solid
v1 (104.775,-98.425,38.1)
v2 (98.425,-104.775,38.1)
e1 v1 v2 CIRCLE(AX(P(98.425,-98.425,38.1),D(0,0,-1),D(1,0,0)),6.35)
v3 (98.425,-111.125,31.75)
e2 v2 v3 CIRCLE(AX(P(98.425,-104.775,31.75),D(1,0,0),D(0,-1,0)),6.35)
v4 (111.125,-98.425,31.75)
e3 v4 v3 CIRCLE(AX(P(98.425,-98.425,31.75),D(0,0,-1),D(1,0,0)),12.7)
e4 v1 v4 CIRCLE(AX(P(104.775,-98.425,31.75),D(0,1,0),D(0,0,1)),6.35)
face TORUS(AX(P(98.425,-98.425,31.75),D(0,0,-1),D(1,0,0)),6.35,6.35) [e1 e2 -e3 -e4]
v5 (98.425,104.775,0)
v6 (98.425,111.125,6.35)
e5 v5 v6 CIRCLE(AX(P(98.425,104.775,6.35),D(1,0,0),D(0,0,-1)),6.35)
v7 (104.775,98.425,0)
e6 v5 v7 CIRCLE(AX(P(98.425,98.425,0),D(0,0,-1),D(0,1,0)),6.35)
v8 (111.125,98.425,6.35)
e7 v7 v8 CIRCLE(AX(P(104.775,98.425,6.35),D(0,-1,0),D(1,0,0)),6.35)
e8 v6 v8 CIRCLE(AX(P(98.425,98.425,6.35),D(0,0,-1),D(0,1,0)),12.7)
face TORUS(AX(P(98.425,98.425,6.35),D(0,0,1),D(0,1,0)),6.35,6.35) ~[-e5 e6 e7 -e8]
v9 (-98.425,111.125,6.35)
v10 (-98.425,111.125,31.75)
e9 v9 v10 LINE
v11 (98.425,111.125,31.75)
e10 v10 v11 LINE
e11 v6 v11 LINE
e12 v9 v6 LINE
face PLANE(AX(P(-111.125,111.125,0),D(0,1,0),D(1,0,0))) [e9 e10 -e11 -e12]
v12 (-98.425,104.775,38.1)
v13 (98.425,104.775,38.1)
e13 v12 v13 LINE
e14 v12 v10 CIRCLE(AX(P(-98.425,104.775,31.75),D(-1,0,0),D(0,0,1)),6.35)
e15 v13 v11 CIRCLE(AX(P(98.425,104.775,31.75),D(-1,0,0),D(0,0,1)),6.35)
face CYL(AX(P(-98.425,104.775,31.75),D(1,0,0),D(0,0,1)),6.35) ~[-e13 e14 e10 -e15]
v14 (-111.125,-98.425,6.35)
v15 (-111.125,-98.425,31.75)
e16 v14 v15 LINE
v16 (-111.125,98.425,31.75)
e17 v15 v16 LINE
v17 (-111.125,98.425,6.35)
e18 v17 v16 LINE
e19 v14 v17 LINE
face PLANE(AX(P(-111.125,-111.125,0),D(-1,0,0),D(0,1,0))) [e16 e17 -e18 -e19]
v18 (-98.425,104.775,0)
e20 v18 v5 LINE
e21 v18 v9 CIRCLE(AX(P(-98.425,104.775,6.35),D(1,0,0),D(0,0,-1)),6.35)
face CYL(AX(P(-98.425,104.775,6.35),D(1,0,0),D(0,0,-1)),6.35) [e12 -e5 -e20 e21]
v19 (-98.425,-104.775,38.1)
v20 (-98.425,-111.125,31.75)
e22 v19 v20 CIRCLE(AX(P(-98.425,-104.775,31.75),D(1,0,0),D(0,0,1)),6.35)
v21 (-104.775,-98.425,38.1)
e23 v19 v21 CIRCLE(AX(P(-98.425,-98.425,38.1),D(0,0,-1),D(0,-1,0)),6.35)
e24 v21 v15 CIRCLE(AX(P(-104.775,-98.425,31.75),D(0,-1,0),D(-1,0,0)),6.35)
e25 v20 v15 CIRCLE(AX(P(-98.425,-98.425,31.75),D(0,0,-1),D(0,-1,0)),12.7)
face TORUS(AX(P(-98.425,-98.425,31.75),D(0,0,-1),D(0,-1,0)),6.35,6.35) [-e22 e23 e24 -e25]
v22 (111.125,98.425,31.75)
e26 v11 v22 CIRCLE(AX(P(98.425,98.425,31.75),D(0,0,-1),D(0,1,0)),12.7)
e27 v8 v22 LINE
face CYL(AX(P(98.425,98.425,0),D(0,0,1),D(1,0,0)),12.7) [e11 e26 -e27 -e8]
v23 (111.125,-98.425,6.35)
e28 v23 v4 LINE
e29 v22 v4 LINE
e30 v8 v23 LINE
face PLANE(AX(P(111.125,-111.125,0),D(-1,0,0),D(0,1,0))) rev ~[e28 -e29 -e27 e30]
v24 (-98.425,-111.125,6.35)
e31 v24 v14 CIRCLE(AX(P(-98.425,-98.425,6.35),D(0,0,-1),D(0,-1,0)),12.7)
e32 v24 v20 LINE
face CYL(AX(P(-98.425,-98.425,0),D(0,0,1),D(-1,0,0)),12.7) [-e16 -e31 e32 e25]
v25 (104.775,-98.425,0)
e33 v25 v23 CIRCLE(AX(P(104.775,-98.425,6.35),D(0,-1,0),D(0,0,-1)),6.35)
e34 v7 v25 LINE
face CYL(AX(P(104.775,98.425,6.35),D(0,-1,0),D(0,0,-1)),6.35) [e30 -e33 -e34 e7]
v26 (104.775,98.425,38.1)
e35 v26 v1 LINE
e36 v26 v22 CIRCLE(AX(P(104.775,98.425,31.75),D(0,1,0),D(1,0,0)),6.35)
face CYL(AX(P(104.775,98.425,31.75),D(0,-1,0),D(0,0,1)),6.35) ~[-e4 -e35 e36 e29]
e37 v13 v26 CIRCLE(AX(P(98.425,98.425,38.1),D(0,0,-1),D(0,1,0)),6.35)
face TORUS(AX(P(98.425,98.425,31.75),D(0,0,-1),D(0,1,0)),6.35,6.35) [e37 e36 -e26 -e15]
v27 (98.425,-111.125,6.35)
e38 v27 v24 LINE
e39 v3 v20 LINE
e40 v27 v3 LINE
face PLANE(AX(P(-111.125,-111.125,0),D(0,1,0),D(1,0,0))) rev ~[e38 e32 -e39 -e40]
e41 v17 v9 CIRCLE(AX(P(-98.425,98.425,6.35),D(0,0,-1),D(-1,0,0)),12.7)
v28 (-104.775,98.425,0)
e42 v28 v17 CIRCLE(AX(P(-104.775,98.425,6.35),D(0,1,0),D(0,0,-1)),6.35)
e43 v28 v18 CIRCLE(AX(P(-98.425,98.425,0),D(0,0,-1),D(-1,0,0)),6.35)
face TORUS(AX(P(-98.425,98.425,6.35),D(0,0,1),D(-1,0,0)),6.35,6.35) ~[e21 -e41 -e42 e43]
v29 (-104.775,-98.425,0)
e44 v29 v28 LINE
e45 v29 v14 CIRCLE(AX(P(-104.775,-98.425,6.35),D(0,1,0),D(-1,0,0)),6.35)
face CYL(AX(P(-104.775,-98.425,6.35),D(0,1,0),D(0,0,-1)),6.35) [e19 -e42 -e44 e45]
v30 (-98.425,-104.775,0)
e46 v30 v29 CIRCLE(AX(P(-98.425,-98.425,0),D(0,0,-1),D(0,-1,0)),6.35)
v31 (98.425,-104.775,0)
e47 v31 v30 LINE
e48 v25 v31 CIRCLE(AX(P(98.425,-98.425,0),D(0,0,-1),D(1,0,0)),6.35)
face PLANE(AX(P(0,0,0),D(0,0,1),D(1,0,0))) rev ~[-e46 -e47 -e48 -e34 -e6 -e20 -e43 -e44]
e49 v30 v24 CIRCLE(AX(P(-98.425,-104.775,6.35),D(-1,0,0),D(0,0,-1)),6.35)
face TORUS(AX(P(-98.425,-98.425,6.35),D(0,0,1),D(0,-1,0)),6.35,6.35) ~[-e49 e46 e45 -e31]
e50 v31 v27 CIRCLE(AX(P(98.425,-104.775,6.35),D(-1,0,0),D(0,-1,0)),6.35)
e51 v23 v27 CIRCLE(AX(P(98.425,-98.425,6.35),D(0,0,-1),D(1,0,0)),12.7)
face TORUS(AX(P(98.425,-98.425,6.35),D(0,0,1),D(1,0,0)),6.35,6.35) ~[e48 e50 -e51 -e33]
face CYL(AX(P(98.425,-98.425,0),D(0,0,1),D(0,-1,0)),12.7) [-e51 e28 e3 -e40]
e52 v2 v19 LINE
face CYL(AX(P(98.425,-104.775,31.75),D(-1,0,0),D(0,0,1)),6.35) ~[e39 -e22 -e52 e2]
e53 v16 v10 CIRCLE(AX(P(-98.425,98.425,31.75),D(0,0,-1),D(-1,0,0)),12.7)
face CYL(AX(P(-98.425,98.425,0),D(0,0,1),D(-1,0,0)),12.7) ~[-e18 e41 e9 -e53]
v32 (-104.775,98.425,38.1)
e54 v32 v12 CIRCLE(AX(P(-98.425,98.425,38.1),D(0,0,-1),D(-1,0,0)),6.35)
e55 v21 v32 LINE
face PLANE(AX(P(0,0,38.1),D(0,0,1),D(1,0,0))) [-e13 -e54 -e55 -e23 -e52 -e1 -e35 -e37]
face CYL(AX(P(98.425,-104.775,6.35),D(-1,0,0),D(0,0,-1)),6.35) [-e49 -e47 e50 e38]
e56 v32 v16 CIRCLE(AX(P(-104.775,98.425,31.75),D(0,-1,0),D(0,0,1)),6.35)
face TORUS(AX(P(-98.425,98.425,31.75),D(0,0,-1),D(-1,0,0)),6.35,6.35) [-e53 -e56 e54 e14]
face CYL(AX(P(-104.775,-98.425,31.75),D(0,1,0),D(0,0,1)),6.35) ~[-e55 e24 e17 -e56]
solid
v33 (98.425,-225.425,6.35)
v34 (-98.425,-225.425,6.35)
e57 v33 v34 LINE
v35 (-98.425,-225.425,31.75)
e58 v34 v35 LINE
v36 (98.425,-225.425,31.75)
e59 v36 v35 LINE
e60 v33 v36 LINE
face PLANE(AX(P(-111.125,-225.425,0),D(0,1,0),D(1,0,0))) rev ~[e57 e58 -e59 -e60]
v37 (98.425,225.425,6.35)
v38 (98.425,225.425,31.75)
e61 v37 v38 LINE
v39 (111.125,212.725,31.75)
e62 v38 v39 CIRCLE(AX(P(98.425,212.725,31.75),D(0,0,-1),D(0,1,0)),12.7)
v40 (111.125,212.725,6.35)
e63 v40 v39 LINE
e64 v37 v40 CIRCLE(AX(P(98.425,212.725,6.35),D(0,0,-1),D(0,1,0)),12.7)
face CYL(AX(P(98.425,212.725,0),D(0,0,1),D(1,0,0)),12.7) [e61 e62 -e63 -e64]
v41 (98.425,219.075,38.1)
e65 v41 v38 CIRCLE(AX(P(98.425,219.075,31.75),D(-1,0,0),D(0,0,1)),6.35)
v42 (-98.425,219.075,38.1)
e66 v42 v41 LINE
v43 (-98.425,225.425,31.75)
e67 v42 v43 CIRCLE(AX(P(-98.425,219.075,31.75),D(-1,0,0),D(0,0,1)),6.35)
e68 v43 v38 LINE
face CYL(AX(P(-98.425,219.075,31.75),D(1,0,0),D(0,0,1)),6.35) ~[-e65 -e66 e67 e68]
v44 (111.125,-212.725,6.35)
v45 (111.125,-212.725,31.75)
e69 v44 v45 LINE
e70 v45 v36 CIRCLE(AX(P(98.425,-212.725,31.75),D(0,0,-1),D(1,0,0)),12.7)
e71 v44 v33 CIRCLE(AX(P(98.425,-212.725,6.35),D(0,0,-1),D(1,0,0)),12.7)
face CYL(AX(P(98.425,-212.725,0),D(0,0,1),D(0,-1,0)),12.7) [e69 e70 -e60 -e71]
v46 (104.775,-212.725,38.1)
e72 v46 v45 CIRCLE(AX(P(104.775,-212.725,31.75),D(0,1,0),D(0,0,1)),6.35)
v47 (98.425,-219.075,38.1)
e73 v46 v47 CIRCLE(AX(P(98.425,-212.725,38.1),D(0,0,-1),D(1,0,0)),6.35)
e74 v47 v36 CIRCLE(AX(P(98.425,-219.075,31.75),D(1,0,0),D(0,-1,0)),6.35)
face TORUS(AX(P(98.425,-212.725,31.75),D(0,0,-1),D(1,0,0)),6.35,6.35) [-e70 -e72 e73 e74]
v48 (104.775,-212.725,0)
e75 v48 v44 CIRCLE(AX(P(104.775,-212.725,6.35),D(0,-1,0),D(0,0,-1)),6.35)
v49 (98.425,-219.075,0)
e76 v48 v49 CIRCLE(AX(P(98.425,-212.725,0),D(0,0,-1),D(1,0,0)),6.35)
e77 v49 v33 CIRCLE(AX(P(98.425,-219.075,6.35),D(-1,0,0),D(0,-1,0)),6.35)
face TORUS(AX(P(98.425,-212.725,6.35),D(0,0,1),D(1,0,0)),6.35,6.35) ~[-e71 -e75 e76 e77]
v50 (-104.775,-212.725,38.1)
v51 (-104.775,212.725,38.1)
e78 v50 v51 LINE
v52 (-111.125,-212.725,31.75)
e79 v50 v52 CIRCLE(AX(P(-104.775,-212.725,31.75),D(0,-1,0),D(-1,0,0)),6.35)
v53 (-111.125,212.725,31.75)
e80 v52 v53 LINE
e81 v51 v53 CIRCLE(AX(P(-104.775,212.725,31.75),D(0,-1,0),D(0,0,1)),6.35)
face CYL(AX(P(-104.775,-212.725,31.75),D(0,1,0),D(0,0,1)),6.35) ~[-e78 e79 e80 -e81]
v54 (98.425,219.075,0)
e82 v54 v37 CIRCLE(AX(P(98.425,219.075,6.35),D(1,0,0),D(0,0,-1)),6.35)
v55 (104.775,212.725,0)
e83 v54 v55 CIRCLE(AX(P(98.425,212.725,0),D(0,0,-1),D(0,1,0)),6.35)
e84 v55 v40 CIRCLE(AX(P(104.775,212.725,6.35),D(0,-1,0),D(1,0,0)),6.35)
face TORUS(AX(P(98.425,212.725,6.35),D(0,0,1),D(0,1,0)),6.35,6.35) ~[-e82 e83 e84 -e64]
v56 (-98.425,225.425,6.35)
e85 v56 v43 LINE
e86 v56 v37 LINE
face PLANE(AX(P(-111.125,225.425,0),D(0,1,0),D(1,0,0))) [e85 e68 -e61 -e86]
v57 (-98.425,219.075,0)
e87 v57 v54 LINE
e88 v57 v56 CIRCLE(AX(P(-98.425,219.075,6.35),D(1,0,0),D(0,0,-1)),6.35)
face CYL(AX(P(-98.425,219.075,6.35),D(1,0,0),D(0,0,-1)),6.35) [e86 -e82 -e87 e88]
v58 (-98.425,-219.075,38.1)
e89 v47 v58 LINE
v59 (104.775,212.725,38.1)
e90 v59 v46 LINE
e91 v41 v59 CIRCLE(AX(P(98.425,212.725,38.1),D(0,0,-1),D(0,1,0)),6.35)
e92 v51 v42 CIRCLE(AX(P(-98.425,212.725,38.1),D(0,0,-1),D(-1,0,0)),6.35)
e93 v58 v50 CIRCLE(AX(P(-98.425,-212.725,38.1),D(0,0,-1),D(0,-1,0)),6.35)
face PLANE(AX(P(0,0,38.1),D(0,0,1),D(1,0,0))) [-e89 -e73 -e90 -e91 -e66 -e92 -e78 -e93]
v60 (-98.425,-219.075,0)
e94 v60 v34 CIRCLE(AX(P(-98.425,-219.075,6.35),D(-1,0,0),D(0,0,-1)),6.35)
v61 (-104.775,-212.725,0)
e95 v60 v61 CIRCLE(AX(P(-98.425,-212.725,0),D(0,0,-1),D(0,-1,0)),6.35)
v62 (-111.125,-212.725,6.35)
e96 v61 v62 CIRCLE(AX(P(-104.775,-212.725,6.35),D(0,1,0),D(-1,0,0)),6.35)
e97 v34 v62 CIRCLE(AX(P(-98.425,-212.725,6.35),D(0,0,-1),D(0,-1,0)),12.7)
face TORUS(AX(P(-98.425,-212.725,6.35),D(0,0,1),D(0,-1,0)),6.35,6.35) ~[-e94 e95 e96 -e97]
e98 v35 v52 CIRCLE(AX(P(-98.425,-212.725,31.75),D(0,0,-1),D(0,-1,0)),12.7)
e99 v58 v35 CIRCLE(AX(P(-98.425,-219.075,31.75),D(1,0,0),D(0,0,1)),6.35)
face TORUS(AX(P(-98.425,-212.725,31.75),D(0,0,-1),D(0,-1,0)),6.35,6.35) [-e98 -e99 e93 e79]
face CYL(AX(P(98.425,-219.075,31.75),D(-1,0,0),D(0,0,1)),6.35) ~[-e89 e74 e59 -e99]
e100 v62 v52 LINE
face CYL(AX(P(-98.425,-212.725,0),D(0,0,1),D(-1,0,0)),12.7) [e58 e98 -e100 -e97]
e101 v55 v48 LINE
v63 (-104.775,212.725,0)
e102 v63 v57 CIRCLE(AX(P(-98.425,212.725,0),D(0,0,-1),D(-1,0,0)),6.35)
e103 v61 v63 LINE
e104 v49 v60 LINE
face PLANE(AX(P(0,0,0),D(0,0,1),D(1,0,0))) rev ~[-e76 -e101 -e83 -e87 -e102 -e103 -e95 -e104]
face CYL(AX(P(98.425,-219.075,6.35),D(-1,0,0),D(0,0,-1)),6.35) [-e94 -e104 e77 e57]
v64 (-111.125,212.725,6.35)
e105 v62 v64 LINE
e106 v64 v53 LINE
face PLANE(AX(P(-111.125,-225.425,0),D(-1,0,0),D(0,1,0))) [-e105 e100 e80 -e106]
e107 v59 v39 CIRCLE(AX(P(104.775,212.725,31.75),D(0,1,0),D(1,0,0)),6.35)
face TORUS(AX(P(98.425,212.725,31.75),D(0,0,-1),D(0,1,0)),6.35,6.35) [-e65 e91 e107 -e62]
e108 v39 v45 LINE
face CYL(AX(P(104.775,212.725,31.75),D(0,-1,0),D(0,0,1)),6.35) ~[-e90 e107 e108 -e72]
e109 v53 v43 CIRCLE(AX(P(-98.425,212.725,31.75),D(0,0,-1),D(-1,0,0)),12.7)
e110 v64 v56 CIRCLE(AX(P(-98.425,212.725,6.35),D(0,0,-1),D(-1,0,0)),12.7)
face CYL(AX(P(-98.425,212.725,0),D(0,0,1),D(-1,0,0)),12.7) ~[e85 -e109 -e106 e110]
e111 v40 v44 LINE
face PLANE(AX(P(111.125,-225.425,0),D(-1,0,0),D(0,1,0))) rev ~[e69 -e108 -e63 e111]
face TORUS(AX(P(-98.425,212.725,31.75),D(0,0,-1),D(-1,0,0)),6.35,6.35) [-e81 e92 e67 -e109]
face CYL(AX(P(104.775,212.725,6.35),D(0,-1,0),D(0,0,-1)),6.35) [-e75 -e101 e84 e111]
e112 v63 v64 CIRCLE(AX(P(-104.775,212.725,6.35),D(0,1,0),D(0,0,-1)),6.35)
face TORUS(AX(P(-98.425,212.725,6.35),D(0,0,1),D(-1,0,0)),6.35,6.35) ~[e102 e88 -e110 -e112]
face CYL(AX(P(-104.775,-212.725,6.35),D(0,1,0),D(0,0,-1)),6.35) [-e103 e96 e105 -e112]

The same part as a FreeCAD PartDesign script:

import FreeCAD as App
import Part
import Sketcher
Q = App.Units.Quantity


def edges_at(feature, points):
    """Names of the edges that pass closest to the given points."""
    edges = feature.Shape.Edges
    near = lambda p: min(range(len(edges)), key=lambda i: edges[i].distToShape(Part.Vertex(*p))[0])
    return sorted({f"Edge{near(p) + 1}" for p in points})


def add_polygon(sketch, points):
    """Adds a closed chain of lines whose ends are joined by coincident constraints."""
    first, n = sketch.GeometryCount, len(points)
    for a, b in zip(points, points[1:] + points[:1]):
        sketch.addGeometry(Part.LineSegment(App.Vector(*a, 0), App.Vector(*b, 0)), False)
    for i in range(n):
        sketch.addConstraint(Sketcher.Constraint("Coincident", first + i, 2, first + (i + 1) % n, 1))

doc = App.newDocument("Part")
body = doc.addObject("PartDesign::Body", "Body")

sketch1 = doc.addObject("Sketcher::SketchObject", "Sketch")
body.addObject(sketch1)
sketch1.AttachmentSupport = (doc.XY_Plane, [""])
sketch1.MapMode = "FlatFace"
add_polygon(sketch1, [(-111, 111), (-111, -111), (111, -111), (111, 111)])
sketch1.addConstraint([
    Sketcher.Constraint("Vertical", 0),
    Sketcher.Constraint("Horizontal", 1),
    Sketcher.Constraint("Vertical", 2),
    Sketcher.Constraint("Horizontal", 3),
    Sketcher.Constraint("Symmetric", 0, 2, 2, 2, -1, 1),
    Sketcher.Constraint("Equal", 3, 0),
    Sketcher.Constraint("DistanceX", 1, 1, 1, 2, Q("8.75 in")),
])
pad1 = doc.addObject("PartDesign::Pad", "Pad")
body.addObject(pad1)
pad1.Profile = sketch1
pad1.Length = Q("1.5 in")
doc.recompute()

fillet = doc.addObject("PartDesign::Fillet", "Fillet")
body.addObject(fillet)
fillet.Base = (pad1, edges_at(pad1, [
    (-111.125, -111.125, 19.05),
    (111.125, -111.125, 19.05),
    (111.125, 111.125, 19.05),
    (-111.125, 111.125, 19.05),
]))
fillet.Radius = Q("0.5 in")
doc.recompute()

fillet2 = doc.addObject("PartDesign::Fillet", "Fillet001")
body.addObject(fillet2)
fillet2.Base = (fillet, edges_at(fillet, [
    (0, 111.125, 38.1),
    (107.405, 107.405, 38.1),
    (-107.405, 107.405, 38.1),
    (111.125, 0, 38.1),
    (-111.125, 0, 38.1),
    (107.405, -107.405, 38.1),
    (-107.405, -107.405, 38.1),
    (0, -111.125, 38.1),
    (0, 111.125, 0),
    (107.405, 107.405, 0),
    (-107.405, 107.405, 0),
    (111.125, 0, 0),
    (-111.125, 0, 0),
    (107.405, -107.405, 0),
    (-107.405, -107.405, 0),
    (0, -111.125, 0),
]))
fillet2.Radius = Q("0.25 in")
body2 = doc.addObject("PartDesign::Body", "Body001")

sketch2 = doc.addObject("Sketcher::SketchObject", "Sketch001")
body2.addObject(sketch2)
sketch2.AttachmentSupport = (doc.getObject("XY_Plane001"), [""])
sketch2.MapMode = "FlatFace"
add_polygon(sketch2, [(-111, 225), (-111, -225), (111, -225), (111, 225)])
sketch2.addConstraint([
    Sketcher.Constraint("Vertical", 0),
    Sketcher.Constraint("Horizontal", 1),
    Sketcher.Constraint("Vertical", 2),
    Sketcher.Constraint("Horizontal", 3),
    Sketcher.Constraint("Symmetric", 0, 2, 2, 2, -1, 1),
    Sketcher.Constraint("DistanceX", 1, 1, 1, 2, Q("8.75 in")),
    Sketcher.Constraint("DistanceY", 0, 2, 0, 1, Q("17.75 in")),
])
pad2 = doc.addObject("PartDesign::Pad", "Pad001")
body2.addObject(pad2)
pad2.Profile = sketch2
pad2.Length = Q("1.5 in")
doc.recompute()

fillet3 = doc.addObject("PartDesign::Fillet", "Fillet002")
body2.addObject(fillet3)
fillet3.Base = (pad2, edges_at(pad2, [
    (-111.125, -225.425, 19.05),
    (111.125, -225.425, 19.05),
    (111.125, 225.425, 19.05),
    (-111.125, 225.425, 19.05),
]))
fillet3.Radius = Q("0.5 in")
doc.recompute()

fillet4 = doc.addObject("PartDesign::Fillet", "Fillet003")
body2.addObject(fillet4)
fillet4.Base = (fillet3, edges_at(fillet3, [
    (0, 225.425, 38.1),
    (107.405, 221.705, 38.1),
    (-107.405, 221.705, 38.1),
    (111.125, 0, 38.1),
    (-111.125, 0, 38.1),
    (107.405, -221.705, 38.1),
    (-107.405, -221.705, 38.1),
    (0, -225.425, 38.1),
    (0, 225.425, 0),
    (107.405, 221.705, 0),
    (-107.405, 221.705, 0),
    (111.125, 0, 0),
    (-111.125, 0, 0),
    (107.405, -221.705, 0),
    (-107.405, -221.705, 0),
    (0, -225.425, 0),
]))
fillet4.Radius = Q("0.25 in")

doc.recompute()
